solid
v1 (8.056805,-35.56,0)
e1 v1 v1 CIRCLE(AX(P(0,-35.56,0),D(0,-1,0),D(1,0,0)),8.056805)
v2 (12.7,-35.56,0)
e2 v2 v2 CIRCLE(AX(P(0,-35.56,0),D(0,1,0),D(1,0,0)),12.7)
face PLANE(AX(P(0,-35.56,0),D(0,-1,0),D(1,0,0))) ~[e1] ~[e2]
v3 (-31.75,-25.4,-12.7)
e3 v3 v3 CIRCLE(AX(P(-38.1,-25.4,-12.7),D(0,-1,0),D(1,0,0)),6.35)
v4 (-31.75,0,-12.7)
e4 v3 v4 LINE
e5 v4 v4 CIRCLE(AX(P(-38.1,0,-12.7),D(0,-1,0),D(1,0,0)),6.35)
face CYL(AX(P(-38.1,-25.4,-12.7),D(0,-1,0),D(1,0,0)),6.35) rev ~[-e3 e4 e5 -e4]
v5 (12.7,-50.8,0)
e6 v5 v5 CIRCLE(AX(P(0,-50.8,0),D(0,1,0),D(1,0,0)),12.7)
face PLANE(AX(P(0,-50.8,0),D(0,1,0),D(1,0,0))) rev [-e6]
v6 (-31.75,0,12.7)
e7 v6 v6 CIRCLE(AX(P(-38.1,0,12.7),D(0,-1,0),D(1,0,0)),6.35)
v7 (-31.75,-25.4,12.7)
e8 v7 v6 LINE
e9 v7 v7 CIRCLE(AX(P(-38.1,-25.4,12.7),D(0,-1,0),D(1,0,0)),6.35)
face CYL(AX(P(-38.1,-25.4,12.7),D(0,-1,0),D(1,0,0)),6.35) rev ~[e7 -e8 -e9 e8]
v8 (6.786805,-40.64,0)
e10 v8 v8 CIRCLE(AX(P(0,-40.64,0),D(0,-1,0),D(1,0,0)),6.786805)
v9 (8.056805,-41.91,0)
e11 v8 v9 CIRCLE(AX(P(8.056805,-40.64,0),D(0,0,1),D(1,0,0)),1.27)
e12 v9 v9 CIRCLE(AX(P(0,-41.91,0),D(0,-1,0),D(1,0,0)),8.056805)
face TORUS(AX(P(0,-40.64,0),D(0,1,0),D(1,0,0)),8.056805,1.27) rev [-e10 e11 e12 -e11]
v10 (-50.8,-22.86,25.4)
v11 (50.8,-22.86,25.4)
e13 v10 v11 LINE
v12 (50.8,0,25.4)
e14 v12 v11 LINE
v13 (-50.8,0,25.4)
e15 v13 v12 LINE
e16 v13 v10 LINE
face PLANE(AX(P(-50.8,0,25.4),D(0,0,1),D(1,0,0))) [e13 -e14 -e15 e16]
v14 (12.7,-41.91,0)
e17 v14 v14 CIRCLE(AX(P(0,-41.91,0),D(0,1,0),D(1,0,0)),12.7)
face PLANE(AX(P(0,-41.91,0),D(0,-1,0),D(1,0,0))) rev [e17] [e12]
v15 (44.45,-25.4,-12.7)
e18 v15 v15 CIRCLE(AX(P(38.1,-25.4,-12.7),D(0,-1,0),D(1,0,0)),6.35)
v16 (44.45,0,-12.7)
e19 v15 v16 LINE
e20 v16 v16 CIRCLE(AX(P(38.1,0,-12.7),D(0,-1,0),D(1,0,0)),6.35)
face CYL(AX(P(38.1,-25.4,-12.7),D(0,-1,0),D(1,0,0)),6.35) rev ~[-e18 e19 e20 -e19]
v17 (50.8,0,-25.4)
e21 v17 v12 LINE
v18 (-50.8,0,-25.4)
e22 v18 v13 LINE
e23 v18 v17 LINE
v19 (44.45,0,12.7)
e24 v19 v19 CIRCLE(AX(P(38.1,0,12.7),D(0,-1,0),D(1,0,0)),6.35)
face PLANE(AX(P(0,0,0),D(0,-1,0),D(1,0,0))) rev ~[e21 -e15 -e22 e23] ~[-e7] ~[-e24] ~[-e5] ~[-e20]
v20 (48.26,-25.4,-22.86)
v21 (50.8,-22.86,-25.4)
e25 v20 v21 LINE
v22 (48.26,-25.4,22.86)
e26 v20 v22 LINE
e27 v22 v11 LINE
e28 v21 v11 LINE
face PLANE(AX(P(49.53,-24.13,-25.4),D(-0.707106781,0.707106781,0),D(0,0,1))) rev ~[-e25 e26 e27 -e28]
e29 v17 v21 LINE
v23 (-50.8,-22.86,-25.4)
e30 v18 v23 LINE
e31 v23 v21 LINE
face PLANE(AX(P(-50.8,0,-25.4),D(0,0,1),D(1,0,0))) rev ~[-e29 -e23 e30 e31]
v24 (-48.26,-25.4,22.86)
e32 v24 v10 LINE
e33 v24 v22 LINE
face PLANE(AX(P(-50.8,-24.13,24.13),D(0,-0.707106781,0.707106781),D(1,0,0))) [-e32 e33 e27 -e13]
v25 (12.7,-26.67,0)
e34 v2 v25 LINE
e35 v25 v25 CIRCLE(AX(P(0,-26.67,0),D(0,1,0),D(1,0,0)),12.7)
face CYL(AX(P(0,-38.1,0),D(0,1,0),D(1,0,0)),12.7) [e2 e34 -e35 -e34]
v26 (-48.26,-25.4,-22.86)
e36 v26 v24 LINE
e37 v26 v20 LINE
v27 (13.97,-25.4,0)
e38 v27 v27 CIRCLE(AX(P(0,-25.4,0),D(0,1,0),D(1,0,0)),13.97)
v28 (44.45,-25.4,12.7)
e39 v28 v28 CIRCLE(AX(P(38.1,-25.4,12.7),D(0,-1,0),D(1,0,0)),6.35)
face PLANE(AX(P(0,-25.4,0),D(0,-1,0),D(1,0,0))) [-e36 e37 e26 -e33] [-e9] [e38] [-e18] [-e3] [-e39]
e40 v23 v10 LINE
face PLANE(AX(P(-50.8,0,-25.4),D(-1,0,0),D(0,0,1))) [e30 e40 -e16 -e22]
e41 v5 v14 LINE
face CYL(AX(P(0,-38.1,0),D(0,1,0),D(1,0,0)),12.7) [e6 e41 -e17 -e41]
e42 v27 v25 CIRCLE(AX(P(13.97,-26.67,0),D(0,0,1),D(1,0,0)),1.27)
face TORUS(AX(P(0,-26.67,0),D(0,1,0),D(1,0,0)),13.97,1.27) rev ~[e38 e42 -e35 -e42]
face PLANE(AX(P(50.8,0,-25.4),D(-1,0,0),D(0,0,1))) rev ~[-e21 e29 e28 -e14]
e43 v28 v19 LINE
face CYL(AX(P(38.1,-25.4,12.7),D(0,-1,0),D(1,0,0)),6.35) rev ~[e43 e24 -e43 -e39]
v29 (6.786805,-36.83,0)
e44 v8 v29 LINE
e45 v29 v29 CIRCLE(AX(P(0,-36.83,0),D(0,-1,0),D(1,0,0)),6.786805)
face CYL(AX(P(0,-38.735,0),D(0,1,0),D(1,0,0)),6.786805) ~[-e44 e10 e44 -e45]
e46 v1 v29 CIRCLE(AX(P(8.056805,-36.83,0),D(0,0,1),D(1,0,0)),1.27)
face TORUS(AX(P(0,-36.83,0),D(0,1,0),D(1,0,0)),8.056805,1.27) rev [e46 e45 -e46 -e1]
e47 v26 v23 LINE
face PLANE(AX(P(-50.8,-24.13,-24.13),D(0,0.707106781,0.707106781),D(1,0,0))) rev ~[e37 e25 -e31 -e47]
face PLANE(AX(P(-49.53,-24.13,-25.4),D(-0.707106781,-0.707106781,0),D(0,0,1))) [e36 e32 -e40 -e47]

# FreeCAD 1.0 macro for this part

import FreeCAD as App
import Part
import Sketcher
from FreeCAD import Vector
Q = App.Units.Quantity


def edges_at(feature, points):
    """Names of the edges that pass closest to the given points."""
    edges = feature.Shape.Edges
    near = lambda p: min(range(len(edges)), key=lambda i: edges[i].distToShape(Part.Vertex(*p))[0])
    return sorted({f"Edge{near(p) + 1}" for p in points})

doc = App.newDocument("Part")
params = doc.addObject("Spreadsheet::Sheet", "Params")
for row, (alias, value) in enumerate([
    ("sketch1_width", "4 in"),
    ("sketch1_height", "2 in"),
    ("pad1_length", "1 in"),
    ("sketch2_diameter", "0.5 in"),
    ("sketch3_height", "1 in"),
    ("sketch3_width", "0.5 in"),
    ("revolution_angle", "360 deg"),
    ("sketch4_width", "0.4 in"),
    ("sketch4_height", "0.25 in"),
    ("groove_angle", "360 deg"),
    ("fillet_radius", "0.05 in"),
    ("chamfer_size", "0.1 in"),
], start=1):
    params.set(f"A{row}", alias)
    params.set(f"B{row}", "=" + value)
    params.setAlias(f"B{row}", alias)

body = doc.addObject("PartDesign::Body", "Body")

# Sketch on XZ plane
sketch1 = body.newObject("Sketcher::SketchObject", "Sketch")
sketch1.AttachmentSupport = (doc.getObject("XZ_Plane"), [""])
sketch1.MapMode = "FlatFace"
sketch1.addGeometry(Part.LineSegment(Vector(-51, 25, 0), Vector(-51, -25, 0)), False)
sketch1.addGeometry(Part.LineSegment(Vector(-51, -25, 0), Vector(51, -25, 0)), False)
sketch1.addGeometry(Part.LineSegment(Vector(51, -25, 0), Vector(51, 25, 0)), False)
sketch1.addGeometry(Part.LineSegment(Vector(51, 25, 0), Vector(-51, 25, 0)), False)
sketch1.addConstraint(Sketcher.Constraint("Coincident", 0, 2, 1, 1))
sketch1.addConstraint(Sketcher.Constraint("Coincident", 1, 2, 2, 1))
sketch1.addConstraint(Sketcher.Constraint("Coincident", 2, 2, 3, 1))
sketch1.addConstraint(Sketcher.Constraint("Coincident", 3, 2, 0, 1))
sketch1.addConstraint(Sketcher.Constraint("Vertical", 0))
sketch1.addConstraint(Sketcher.Constraint("Horizontal", 1))
sketch1.addConstraint(Sketcher.Constraint("Vertical", 2))
sketch1.addConstraint(Sketcher.Constraint("Horizontal", 3))
sketch1.addConstraint(Sketcher.Constraint("Symmetric", 0, 2, 2, 2, -1, 1))
sketch1.addConstraint(Sketcher.Constraint("DistanceX", 1, 1, 1, 2, Q("4 in")))
sketch1.addConstraint(Sketcher.Constraint("DistanceY", 0, 2, 0, 1, Q("2 in")))
sketch1.setExpression("Constraints[9]", "Params.sketch1_width")
sketch1.setExpression("Constraints[10]", "Params.sketch1_height")
pad1 = body.newObject("PartDesign::Pad", "Pad")
pad1.Profile = sketch1
pad1.setExpression("Length", "Params.pad1_length")

# Sketch on XZ plane
sketch2 = body.newObject("Sketcher::SketchObject", "Sketch001")
sketch2.AttachmentSupport = (doc.getObject("XZ_Plane"), [""])
sketch2.MapMode = "FlatFace"
sketch2.AttachmentOffset = App.Placement(Vector(0, 0, 1 * 25.4), App.Rotation())
sketch2.addGeometry(Part.Circle(Vector(-38, 13, 0), Vector(0, 0, 1), 6), False)
sketch2.addGeometry(Part.Circle(Vector(-38, -13, 0), Vector(0, 0, 1), 6), False)
sketch2.addGeometry(Part.Circle(Vector(38, 13, 0), Vector(0, 0, 1), 6), False)
sketch2.addGeometry(Part.Circle(Vector(38, -13, 0), Vector(0, 0, 1), 6), False)
sketch2.addConstraint(Sketcher.Constraint("Equal", 0, 1))
sketch2.addConstraint(Sketcher.Constraint("Equal", 1, 2))
sketch2.addConstraint(Sketcher.Constraint("Equal", 2, 3))
sketch2.addConstraint(Sketcher.Constraint("Symmetric", 1, 3, 2, 3, -1, 1))
sketch2.addConstraint(Sketcher.Constraint("Symmetric", 0, 3, 3, 3, -1, 1))
sketch2.addConstraint(Sketcher.Constraint("Symmetric", 0, 3, 2, 3, -2))
sketch2.addConstraint(Sketcher.Constraint("Diameter", 0, Q("0.5 in")))
sketch2.addConstraint(Sketcher.Constraint("DistanceY", 1, 3, 0, 3, Q("1 in")))
sketch2.addConstraint(Sketcher.Constraint("DistanceX", 0, 3, 2, 3, Q("3 in")))
sketch2.setExpression("Constraints[6]", "Params.sketch2_diameter")
pocket1 = body.newObject("PartDesign::Pocket", "Pocket")
pocket1.Profile = sketch2
pocket1.Type = "ThroughAll"

# Sketch on XY plane
sketch3 = body.newObject("Sketcher::SketchObject", "Sketch002")
sketch3.AttachmentSupport = (doc.getObject("XY_Plane"), [""])
sketch3.MapMode = "FlatFace"
sketch3.addGeometry(Part.LineSegment(Vector(0, -25, 0), Vector(0, -51, 0)), False)
sketch3.addGeometry(Part.LineSegment(Vector(0, -51, 0), Vector(13, -51, 0)), False)
sketch3.addGeometry(Part.LineSegment(Vector(13, -51, 0), Vector(13, -25, 0)), False)
sketch3.addGeometry(Part.LineSegment(Vector(13, -25, 0), Vector(0, -25, 0)), False)
sketch3.addConstraint(Sketcher.Constraint("Coincident", 0, 2, 1, 1))
sketch3.addConstraint(Sketcher.Constraint("Coincident", 1, 2, 2, 1))
sketch3.addConstraint(Sketcher.Constraint("Coincident", 2, 2, 3, 1))
sketch3.addConstraint(Sketcher.Constraint("Coincident", 3, 2, 0, 1))
sketch3.addConstraint(Sketcher.Constraint("Vertical", 0))
sketch3.addConstraint(Sketcher.Constraint("Horizontal", 1))
sketch3.addConstraint(Sketcher.Constraint("Vertical", 2))
sketch3.addConstraint(Sketcher.Constraint("Horizontal", 3))
sketch3.addConstraint(Sketcher.Constraint("PointOnObject", 0, 2, -2))
sketch3.addConstraint(Sketcher.Constraint("DistanceY", 0, 2, 0, 1, Q("1 in")))
sketch3.addConstraint(Sketcher.Constraint("DistanceX", 1, 1, 1, 2, Q("0.5 in")))
sketch3.addConstraint(Sketcher.Constraint("DistanceY", 0, 2, -1, 1, Q("2 in")))
sketch3.setExpression("Constraints[9]", "Params.sketch3_height")
sketch3.setExpression("Constraints[10]", "Params.sketch3_width")
revolution = body.newObject("PartDesign::Revolution", "Revolution")
revolution.Profile = sketch3
revolution.ReferenceAxis = (sketch3, ["V_Axis"])
revolution.setExpression("Angle", "Params.revolution_angle")

# Sketch on XY plane
sketch4 = body.newObject("Sketcher::SketchObject", "Sketch003")
sketch4.AttachmentSupport = (doc.getObject("XY_Plane"), [""])
sketch4.MapMode = "FlatFace"
sketch4.addGeometry(Part.LineSegment(Vector(7, -36, 0), Vector(7, -42, 0)), False)
sketch4.addGeometry(Part.LineSegment(Vector(7, -42, 0), Vector(17, -42, 0)), False)
sketch4.addGeometry(Part.LineSegment(Vector(17, -42, 0), Vector(17, -36, 0)), False)
sketch4.addGeometry(Part.LineSegment(Vector(17, -36, 0), Vector(7, -36, 0)), False)
sketch4.addConstraint(Sketcher.Constraint("Coincident", 0, 2, 1, 1))
sketch4.addConstraint(Sketcher.Constraint("Coincident", 1, 2, 2, 1))
sketch4.addConstraint(Sketcher.Constraint("Coincident", 2, 2, 3, 1))
sketch4.addConstraint(Sketcher.Constraint("Coincident", 3, 2, 0, 1))
sketch4.addConstraint(Sketcher.Constraint("Vertical", 0))
sketch4.addConstraint(Sketcher.Constraint("Horizontal", 1))
sketch4.addConstraint(Sketcher.Constraint("Vertical", 2))
sketch4.addConstraint(Sketcher.Constraint("Horizontal", 3))
sketch4.addConstraint(Sketcher.Constraint("DistanceX", 1, 1, 1, 2, Q("0.4 in")))
sketch4.addConstraint(Sketcher.Constraint("DistanceY", 0, 2, 0, 1, Q("0.25 in")))
sketch4.addConstraint(Sketcher.Constraint("DistanceY", 2, 2, -1, 1, Q("1.4 in")))
sketch4.addConstraint(Sketcher.Constraint("DistanceX", -1, 1, 0, 2, Q("6.786805 mm")))
sketch4.setExpression("Constraints[8]", "Params.sketch4_width")
sketch4.setExpression("Constraints[9]", "Params.sketch4_height")
groove = body.newObject("PartDesign::Groove", "Groove")
groove.Profile = sketch4
groove.ReferenceAxis = (sketch4, ["V_Axis"])
groove.setExpression("Angle", "Params.groove_angle")
doc.recompute()

fillet = body.newObject("PartDesign::Fillet", "Fillet")
fillet.Base = (groove, edges_at(groove, [(-12.7, -25.4, 0), (-6.787, -41.91, 0), (-6.787, -35.56, 0)]))
fillet.setExpression("Radius", "Params.fillet_radius")
doc.recompute()

chamfer = body.newObject("PartDesign::Chamfer", "Chamfer")
chamfer.Base = (fillet, edges_at(fillet, [
    (0, -25.4, -25.4),
    (0, -25.4, 25.4),
    (-50.8, -25.4, 0),
    (50.8, -25.4, 0),
]))
chamfer.setExpression("Size", "Params.chamfer_size")

doc.recompute()
